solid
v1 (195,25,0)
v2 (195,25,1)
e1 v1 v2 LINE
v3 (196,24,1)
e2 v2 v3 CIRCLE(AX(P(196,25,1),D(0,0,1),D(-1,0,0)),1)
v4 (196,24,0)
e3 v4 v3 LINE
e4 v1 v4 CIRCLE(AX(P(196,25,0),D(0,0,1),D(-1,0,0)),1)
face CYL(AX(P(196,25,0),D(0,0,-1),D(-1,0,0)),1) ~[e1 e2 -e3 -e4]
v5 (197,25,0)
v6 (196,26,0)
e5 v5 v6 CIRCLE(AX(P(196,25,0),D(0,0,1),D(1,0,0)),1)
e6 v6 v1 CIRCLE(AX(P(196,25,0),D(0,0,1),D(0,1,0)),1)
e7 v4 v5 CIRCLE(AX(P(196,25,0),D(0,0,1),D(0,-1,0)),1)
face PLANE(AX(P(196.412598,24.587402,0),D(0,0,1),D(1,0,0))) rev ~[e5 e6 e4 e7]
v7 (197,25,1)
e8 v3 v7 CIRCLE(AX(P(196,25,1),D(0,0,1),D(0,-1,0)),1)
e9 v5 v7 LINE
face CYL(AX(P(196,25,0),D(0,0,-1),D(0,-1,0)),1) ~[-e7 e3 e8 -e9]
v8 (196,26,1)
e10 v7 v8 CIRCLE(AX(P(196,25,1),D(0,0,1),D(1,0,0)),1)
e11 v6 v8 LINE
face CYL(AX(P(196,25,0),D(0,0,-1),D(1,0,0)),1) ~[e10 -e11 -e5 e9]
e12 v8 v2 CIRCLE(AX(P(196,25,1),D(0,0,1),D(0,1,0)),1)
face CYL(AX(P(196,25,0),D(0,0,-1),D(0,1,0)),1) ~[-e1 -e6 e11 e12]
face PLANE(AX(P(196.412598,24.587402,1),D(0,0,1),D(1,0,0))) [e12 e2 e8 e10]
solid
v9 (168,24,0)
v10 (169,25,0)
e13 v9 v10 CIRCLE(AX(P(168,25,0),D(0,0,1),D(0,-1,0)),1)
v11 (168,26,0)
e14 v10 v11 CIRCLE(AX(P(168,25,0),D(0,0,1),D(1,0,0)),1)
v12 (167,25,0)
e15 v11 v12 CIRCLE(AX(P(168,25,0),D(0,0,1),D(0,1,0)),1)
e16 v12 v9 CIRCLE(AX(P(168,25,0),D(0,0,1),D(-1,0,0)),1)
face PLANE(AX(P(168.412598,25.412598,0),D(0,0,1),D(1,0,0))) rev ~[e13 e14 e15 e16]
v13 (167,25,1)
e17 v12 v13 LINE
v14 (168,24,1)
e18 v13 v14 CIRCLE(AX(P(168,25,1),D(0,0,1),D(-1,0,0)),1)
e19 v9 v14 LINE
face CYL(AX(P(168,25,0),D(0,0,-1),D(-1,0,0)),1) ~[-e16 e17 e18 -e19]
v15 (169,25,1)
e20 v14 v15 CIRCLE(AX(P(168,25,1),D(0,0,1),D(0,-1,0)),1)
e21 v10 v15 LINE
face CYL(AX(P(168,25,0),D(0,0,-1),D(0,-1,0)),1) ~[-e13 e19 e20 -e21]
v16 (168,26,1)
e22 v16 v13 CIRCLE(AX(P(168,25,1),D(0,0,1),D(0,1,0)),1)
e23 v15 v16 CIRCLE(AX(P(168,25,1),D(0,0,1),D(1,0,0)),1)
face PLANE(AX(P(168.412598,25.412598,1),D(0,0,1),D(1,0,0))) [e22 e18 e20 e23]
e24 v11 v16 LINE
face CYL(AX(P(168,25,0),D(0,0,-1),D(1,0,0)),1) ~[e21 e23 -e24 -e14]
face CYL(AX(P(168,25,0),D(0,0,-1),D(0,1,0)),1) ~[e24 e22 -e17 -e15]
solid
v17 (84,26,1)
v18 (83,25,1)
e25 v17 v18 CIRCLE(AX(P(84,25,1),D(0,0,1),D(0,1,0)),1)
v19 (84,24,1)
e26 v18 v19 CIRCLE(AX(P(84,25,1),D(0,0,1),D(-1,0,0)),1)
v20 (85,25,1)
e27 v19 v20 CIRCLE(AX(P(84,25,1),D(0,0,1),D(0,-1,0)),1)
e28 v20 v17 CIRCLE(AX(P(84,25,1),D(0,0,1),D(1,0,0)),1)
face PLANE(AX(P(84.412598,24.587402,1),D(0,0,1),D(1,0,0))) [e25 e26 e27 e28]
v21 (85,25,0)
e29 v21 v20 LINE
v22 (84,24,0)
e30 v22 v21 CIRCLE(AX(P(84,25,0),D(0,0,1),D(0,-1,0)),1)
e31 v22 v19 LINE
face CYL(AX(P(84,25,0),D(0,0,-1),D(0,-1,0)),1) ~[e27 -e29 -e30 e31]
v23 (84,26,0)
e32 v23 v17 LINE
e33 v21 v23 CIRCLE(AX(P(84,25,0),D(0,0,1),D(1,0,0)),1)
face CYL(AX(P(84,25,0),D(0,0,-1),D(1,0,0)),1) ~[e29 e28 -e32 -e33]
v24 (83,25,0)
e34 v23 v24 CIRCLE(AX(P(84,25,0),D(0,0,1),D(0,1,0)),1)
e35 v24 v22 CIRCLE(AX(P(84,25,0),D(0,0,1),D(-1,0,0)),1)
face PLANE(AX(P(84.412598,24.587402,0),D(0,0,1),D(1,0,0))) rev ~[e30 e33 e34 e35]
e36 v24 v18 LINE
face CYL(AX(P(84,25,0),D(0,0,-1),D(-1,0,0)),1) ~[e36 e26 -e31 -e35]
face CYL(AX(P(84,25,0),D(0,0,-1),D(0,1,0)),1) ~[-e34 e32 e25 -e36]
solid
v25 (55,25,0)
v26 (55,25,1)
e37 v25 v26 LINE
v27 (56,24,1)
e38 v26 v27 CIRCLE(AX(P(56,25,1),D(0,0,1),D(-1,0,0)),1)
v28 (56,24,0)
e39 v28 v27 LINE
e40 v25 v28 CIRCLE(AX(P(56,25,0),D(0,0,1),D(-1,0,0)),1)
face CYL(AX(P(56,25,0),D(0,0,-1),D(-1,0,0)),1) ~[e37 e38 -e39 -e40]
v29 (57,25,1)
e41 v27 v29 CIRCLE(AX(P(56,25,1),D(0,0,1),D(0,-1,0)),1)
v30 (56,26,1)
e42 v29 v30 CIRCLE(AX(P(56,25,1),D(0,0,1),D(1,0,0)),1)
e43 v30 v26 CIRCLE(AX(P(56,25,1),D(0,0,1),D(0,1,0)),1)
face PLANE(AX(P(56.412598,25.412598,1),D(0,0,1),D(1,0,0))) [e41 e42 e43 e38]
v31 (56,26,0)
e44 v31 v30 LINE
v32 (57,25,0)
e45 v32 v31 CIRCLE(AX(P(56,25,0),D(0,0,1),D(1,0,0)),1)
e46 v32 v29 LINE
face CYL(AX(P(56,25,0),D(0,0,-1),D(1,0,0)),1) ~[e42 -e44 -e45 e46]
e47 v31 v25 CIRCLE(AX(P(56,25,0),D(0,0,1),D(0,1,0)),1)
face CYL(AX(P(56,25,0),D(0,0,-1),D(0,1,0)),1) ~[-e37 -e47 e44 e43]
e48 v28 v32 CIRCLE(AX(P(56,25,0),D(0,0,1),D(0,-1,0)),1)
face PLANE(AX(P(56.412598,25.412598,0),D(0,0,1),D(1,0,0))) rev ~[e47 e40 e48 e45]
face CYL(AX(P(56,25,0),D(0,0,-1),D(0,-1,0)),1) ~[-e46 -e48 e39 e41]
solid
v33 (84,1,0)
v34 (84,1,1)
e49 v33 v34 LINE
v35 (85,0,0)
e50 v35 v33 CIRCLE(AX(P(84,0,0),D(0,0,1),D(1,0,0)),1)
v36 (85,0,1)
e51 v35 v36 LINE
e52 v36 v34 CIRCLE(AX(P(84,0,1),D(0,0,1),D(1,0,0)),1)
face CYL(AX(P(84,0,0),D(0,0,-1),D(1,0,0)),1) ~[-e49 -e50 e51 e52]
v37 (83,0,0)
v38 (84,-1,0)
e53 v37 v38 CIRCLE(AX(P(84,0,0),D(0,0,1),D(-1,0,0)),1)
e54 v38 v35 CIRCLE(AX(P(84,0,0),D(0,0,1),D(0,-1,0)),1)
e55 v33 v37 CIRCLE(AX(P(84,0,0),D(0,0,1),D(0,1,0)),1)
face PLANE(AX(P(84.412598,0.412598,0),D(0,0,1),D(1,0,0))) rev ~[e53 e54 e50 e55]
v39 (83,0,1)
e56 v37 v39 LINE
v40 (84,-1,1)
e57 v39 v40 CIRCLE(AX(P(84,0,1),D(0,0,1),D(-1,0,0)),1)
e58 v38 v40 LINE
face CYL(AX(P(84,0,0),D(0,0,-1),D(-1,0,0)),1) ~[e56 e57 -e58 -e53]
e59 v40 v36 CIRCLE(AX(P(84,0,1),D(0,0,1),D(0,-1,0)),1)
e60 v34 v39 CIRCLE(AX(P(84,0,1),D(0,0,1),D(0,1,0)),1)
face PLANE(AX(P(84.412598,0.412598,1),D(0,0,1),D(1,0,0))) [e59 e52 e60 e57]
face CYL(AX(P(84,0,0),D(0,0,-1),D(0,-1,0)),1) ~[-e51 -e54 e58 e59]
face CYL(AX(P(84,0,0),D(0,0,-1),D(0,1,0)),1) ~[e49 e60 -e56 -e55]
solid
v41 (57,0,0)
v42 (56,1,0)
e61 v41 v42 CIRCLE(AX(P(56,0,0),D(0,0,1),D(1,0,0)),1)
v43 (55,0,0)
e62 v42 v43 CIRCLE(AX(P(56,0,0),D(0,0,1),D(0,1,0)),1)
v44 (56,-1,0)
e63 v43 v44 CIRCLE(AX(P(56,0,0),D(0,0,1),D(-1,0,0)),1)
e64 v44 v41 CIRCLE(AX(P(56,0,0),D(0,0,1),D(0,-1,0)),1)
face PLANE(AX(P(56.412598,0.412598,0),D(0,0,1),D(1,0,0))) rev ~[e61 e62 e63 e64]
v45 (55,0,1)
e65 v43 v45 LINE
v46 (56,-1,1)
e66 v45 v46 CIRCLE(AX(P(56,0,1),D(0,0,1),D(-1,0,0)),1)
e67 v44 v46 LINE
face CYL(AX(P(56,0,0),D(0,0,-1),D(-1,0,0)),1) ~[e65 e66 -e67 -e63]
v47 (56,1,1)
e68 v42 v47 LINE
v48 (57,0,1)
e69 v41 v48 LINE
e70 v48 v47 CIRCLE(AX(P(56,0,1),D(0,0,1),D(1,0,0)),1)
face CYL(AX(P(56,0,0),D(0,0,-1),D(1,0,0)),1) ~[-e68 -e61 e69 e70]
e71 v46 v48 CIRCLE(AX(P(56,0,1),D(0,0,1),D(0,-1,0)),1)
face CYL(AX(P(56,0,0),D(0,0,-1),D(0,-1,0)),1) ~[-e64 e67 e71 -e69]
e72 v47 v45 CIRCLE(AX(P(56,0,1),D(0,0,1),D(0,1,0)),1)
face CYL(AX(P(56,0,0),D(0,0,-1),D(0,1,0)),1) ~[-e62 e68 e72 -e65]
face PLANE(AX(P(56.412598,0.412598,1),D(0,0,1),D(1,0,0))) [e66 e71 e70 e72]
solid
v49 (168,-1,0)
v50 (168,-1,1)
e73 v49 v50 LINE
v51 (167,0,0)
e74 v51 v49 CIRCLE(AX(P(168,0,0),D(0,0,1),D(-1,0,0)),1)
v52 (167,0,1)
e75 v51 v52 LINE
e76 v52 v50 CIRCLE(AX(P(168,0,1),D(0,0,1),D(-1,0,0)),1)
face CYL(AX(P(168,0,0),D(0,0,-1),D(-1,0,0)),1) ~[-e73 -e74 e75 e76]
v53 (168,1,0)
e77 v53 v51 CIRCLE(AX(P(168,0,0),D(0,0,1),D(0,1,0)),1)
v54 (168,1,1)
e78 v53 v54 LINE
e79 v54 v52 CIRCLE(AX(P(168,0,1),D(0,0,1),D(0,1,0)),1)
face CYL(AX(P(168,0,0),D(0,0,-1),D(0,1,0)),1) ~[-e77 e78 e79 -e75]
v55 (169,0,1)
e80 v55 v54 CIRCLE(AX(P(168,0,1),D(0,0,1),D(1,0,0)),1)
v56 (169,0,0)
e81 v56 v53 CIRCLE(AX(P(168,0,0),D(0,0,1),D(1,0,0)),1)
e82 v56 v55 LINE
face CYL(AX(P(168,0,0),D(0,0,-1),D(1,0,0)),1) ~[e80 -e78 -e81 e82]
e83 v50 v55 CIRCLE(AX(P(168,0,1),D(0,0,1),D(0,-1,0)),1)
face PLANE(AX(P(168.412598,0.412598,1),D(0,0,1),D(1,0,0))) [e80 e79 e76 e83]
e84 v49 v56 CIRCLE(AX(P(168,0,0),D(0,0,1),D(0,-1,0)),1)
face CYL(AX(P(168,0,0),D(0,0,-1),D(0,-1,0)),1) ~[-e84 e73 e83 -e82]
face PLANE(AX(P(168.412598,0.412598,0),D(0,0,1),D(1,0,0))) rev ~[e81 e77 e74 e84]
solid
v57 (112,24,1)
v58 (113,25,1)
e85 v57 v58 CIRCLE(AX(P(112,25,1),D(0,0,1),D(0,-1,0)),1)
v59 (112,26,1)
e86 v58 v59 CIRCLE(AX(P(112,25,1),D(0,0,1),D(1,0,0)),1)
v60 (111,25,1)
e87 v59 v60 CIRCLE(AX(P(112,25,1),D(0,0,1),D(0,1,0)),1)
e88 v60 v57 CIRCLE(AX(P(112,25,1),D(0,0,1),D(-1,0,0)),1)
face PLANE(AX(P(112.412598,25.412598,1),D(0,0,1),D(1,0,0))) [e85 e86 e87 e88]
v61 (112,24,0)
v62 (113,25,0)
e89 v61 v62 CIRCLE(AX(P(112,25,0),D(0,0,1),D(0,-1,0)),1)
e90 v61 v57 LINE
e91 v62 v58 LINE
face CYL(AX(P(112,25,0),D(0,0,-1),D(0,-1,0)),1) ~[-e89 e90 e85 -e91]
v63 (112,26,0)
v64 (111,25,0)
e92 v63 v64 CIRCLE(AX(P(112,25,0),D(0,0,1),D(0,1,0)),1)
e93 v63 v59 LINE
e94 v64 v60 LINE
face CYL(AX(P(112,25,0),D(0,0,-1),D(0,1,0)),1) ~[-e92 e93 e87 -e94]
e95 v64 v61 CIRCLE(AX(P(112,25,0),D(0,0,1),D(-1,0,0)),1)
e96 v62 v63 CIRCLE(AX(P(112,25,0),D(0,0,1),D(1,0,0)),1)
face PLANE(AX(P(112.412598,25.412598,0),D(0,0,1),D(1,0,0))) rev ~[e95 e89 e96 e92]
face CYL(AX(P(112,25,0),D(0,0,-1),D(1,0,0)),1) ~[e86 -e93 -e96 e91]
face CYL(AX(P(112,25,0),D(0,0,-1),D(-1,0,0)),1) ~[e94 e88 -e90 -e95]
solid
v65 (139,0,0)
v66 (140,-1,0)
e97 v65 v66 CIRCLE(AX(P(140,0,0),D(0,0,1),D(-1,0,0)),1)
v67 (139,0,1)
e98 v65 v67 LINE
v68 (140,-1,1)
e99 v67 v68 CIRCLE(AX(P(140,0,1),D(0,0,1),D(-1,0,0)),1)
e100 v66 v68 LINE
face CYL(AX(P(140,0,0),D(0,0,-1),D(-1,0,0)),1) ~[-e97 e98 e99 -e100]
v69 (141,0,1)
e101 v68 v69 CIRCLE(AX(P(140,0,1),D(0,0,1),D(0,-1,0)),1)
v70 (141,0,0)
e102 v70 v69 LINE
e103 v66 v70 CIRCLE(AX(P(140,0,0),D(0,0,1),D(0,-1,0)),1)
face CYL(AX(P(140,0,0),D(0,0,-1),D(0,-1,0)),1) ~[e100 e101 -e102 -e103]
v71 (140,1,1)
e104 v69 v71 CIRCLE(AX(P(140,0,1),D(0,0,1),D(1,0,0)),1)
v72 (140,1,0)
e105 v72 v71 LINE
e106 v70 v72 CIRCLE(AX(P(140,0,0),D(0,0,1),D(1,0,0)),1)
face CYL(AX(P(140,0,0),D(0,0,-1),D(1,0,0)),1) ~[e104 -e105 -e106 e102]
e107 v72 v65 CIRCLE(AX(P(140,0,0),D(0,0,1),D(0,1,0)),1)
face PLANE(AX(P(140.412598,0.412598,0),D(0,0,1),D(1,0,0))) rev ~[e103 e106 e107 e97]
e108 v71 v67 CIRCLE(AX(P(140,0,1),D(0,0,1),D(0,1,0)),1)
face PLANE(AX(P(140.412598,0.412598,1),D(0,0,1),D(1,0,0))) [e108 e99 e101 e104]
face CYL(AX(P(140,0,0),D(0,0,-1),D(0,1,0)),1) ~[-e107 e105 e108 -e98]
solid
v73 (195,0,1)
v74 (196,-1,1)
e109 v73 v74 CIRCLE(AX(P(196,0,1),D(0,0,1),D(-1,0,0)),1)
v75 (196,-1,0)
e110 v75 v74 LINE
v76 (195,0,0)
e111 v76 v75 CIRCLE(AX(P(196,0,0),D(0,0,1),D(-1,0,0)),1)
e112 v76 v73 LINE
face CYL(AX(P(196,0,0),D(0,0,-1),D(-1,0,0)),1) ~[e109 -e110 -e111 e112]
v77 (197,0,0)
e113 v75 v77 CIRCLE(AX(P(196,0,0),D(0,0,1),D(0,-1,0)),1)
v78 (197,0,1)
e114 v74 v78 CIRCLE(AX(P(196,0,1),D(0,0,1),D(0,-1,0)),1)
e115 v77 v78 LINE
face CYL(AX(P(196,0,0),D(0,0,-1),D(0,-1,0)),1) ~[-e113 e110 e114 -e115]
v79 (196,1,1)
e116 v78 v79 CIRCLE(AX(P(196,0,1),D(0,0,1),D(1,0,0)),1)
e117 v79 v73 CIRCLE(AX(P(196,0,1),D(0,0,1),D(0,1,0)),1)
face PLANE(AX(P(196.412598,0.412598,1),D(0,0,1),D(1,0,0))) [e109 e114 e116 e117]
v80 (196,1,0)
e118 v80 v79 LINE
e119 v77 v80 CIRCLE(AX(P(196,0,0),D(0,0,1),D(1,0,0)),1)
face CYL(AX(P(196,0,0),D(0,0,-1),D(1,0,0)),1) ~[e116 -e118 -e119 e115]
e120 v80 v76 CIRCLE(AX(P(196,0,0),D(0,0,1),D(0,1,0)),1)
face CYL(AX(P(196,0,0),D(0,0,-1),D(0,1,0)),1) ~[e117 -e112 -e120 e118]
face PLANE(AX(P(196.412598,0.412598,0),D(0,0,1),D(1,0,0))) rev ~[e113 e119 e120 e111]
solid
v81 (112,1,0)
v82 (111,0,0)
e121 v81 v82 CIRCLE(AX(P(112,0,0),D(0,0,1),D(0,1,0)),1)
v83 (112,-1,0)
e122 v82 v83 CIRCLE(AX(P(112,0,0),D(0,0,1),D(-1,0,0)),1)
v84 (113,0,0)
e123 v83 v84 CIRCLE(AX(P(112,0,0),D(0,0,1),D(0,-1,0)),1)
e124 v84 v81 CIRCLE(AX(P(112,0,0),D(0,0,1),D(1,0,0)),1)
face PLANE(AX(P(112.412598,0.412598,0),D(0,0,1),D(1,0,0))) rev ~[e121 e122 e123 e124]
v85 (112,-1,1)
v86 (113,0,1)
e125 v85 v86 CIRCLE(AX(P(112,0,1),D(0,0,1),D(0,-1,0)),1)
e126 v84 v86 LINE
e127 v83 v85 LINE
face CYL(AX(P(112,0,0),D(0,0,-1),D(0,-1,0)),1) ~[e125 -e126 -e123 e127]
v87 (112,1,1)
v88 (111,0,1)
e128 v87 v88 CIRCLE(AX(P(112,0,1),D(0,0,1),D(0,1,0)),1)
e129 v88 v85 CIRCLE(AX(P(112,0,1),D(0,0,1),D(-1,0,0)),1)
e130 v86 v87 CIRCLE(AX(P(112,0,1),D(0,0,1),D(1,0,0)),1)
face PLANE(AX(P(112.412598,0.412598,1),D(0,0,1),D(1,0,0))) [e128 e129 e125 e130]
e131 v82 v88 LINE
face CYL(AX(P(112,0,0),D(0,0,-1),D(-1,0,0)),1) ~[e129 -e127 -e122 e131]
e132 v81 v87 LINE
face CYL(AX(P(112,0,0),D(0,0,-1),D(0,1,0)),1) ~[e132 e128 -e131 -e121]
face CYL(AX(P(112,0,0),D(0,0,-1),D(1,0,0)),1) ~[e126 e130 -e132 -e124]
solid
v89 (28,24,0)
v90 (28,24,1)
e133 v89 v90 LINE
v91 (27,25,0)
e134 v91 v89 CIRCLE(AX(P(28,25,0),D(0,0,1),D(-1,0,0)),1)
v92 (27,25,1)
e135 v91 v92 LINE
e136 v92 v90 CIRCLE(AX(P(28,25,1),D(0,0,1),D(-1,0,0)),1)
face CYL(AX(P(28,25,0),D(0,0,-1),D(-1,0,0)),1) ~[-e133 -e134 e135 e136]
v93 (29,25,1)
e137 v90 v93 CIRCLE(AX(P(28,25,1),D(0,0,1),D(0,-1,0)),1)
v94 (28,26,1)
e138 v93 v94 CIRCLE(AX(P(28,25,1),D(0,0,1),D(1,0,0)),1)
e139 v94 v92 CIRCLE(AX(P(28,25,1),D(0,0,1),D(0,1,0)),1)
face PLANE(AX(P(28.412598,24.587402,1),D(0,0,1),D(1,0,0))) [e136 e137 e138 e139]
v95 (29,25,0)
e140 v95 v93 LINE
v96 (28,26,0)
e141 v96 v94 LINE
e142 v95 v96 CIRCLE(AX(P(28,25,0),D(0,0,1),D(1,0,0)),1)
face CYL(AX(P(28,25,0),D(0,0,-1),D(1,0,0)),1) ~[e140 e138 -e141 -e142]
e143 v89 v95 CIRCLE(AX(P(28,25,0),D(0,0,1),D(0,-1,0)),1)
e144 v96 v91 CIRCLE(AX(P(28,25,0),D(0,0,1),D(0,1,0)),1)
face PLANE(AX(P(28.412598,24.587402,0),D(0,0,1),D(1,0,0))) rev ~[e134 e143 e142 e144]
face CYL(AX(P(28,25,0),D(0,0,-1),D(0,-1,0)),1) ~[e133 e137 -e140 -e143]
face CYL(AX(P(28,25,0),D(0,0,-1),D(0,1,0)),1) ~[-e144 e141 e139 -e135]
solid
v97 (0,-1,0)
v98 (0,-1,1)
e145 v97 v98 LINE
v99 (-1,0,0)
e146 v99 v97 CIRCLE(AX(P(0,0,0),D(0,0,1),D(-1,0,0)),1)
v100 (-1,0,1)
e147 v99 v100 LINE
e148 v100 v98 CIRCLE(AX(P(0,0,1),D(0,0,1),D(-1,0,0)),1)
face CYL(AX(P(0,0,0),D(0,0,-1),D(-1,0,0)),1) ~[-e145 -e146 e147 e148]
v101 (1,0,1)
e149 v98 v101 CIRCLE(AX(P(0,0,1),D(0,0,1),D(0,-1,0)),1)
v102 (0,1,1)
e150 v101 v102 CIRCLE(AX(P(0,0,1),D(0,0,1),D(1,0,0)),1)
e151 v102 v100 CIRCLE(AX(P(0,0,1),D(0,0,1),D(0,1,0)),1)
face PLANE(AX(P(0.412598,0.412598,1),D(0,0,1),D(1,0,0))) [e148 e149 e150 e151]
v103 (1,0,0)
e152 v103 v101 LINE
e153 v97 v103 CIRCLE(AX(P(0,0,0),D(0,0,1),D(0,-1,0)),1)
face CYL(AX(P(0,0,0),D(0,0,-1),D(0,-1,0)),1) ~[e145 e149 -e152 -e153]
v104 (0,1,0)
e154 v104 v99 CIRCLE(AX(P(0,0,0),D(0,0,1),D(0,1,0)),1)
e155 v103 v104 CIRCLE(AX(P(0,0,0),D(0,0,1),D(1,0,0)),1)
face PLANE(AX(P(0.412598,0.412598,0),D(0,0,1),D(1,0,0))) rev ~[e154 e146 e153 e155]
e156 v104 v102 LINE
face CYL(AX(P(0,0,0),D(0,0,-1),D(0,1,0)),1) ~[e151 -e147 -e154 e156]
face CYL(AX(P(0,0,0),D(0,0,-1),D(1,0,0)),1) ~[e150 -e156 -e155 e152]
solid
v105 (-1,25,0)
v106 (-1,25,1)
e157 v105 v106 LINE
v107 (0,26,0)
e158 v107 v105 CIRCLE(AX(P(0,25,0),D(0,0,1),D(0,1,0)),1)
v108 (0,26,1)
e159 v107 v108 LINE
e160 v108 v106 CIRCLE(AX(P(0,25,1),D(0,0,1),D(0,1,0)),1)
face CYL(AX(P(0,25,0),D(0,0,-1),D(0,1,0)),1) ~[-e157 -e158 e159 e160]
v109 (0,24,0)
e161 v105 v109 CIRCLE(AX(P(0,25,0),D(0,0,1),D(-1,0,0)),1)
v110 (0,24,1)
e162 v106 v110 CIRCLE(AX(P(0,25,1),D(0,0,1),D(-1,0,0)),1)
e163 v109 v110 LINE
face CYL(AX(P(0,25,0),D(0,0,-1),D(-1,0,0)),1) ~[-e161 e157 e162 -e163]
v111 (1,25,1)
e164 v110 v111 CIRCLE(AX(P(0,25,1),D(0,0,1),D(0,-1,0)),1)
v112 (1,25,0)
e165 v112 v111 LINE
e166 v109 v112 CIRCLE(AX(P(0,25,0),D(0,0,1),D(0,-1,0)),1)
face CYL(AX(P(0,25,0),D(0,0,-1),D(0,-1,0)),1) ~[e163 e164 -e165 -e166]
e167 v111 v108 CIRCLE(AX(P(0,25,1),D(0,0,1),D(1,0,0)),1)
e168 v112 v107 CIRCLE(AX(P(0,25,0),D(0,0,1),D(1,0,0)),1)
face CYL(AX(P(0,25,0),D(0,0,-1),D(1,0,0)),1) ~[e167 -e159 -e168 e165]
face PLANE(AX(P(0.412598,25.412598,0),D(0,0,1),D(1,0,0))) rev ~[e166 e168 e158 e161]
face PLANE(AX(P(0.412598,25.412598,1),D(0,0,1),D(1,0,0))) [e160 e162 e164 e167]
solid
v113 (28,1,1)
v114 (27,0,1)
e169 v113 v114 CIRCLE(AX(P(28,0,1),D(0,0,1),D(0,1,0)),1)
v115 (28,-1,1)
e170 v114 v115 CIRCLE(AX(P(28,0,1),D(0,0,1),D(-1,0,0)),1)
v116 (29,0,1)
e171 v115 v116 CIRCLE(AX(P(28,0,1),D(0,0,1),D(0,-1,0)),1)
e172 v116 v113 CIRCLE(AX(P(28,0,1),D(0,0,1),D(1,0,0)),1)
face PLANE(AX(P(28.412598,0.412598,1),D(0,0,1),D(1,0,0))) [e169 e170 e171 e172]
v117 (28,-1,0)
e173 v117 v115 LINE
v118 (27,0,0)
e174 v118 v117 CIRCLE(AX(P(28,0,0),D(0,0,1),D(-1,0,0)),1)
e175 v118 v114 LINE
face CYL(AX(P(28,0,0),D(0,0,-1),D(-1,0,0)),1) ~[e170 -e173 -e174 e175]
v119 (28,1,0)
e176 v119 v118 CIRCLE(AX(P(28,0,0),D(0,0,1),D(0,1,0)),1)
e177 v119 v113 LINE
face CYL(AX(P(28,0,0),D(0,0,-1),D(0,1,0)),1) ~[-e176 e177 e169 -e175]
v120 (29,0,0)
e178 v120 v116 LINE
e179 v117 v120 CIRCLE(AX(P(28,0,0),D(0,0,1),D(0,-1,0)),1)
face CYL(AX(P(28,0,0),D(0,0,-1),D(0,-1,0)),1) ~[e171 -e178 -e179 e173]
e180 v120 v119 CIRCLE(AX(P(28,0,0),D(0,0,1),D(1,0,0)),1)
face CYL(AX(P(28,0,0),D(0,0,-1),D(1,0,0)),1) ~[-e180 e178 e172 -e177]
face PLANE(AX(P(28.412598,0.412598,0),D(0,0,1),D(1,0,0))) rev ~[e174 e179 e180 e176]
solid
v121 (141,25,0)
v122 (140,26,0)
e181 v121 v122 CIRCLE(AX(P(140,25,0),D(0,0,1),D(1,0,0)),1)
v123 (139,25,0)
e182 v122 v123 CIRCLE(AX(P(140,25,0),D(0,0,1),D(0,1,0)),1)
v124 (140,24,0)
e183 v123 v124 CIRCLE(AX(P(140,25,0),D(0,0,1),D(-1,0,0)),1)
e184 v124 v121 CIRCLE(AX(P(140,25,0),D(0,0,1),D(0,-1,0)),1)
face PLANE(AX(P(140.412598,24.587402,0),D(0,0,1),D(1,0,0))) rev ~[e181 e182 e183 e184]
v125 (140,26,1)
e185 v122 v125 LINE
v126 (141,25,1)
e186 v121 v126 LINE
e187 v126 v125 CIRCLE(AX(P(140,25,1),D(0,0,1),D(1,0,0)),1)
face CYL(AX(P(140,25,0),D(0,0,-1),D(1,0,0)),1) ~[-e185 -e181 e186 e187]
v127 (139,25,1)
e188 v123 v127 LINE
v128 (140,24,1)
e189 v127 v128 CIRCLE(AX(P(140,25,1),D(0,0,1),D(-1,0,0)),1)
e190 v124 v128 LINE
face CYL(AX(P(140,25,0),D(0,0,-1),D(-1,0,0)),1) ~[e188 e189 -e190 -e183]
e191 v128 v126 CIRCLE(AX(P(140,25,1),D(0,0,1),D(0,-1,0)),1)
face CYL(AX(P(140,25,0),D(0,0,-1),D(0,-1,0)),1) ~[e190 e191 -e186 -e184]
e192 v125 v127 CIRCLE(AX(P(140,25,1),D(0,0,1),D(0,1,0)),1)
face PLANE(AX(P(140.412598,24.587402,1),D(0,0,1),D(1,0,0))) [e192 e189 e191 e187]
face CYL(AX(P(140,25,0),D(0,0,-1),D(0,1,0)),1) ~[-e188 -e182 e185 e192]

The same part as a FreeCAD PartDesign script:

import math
import FreeCAD as App
import Part
import Sketcher
from FreeCAD import Vector
Q = App.Units.Quantity

doc = App.newDocument("Part")
body = doc.addObject("PartDesign::Body", "Body")

sketch1 = doc.addObject("Sketcher::SketchObject", "Sketch")
body.addObject(sketch1)
sketch1.AttachmentSupport = (doc.XY_Plane, [""])
sketch1.MapMode = "FlatFace"
sketch1.addGeometry(Part.ArcOfCircle(Part.Circle(Vector(196, 25, 0), Vector(0, 0, 1), 1), math.radians(-90), math.radians(0)), False)
sketch1.addGeometry(Part.ArcOfCircle(Part.Circle(Vector(196, 25, 0), Vector(0, 0, 1), 1), math.radians(0), math.radians(90)), False)
sketch1.addGeometry(Part.ArcOfCircle(Part.Circle(Vector(196, 25, 0), Vector(0, 0, 1), 1), math.radians(90), math.radians(180)), False)
sketch1.addGeometry(Part.ArcOfCircle(Part.Circle(Vector(196, 25, 0), Vector(0, 0, 1), 1), math.radians(180), math.radians(270)), False)
sketch1.addConstraint(Sketcher.Constraint("Tangent", 0, 2, 1, 1))
sketch1.addConstraint(Sketcher.Constraint("Tangent", 1, 2, 2, 1))
sketch1.addConstraint(Sketcher.Constraint("Tangent", 2, 2, 3, 1))
sketch1.addConstraint(Sketcher.Constraint("Tangent", 3, 2, 0, 1))
sketch1.addConstraint(Sketcher.Constraint("Equal", 0, 1))
sketch1.addConstraint(Sketcher.Constraint("Horizontal", 3, 3, 0, 2))
sketch1.addConstraint(Sketcher.Constraint("Horizontal", 0, 2, 2, 2))
sketch1.addConstraint(Sketcher.Constraint("Vertical", 3, 3, 1, 2))
sketch1.addConstraint(Sketcher.Constraint("Vertical", 1, 2, 3, 2))
sketch1.addConstraint(Sketcher.Constraint("Radius", 0, Q("1 mm")))
sketch1.addConstraint(Sketcher.Constraint("DistanceX", -1, 1, 0, 3, Q("196 mm")))
sketch1.addConstraint(Sketcher.Constraint("DistanceY", -1, 1, 0, 3, Q("25 mm")))
pad1 = doc.addObject("PartDesign::Pad", "Pad")
body.addObject(pad1)
pad1.Profile = sketch1
pad1.Length = 1
body2 = doc.addObject("PartDesign::Body", "Body001")

sketch2 = doc.addObject("Sketcher::SketchObject", "Sketch001")
body2.addObject(sketch2)
sketch2.AttachmentSupport = (doc.getObject("XY_Plane001"), [""])
sketch2.MapMode = "FlatFace"
sketch2.addGeometry(Part.ArcOfCircle(Part.Circle(Vector(168, 25, 0), Vector(0, 0, 1), 1), math.radians(0), math.radians(90)), False)
sketch2.addGeometry(Part.ArcOfCircle(Part.Circle(Vector(168, 25, 0), Vector(0, 0, 1), 1), math.radians(90), math.radians(180)), False)
sketch2.addGeometry(Part.ArcOfCircle(Part.Circle(Vector(168, 25, 0), Vector(0, 0, 1), 1), math.radians(180), math.radians(270)), False)
sketch2.addGeometry(Part.ArcOfCircle(Part.Circle(Vector(168, 25, 0), Vector(0, 0, 1), 1), math.radians(-90), math.radians(0)), False)
sketch2.addConstraint(Sketcher.Constraint("Tangent", 0, 2, 1, 1))
sketch2.addConstraint(Sketcher.Constraint("Tangent", 1, 2, 2, 1))
sketch2.addConstraint(Sketcher.Constraint("Tangent", 2, 2, 3, 1))
sketch2.addConstraint(Sketcher.Constraint("Tangent", 3, 2, 0, 1))
sketch2.addConstraint(Sketcher.Constraint("Equal", 0, 1))
sketch2.addConstraint(Sketcher.Constraint("Horizontal", 3, 3, 1, 2))
sketch2.addConstraint(Sketcher.Constraint("Horizontal", 1, 2, 3, 2))
sketch2.addConstraint(Sketcher.Constraint("Vertical", 3, 3, 0, 2))
sketch2.addConstraint(Sketcher.Constraint("Vertical", 0, 2, 2, 2))
sketch2.addConstraint(Sketcher.Constraint("Radius", 0, Q("1 mm")))
sketch2.addConstraint(Sketcher.Constraint("DistanceX", -1, 1, 0, 3, Q("168 mm")))
sketch2.addConstraint(Sketcher.Constraint("DistanceY", -1, 1, 0, 3, Q("25 mm")))
pad2 = doc.addObject("PartDesign::Pad", "Pad001")
body2.addObject(pad2)
pad2.Profile = sketch2
pad2.Length = 1
body3 = doc.addObject("PartDesign::Body", "Body002")

sketch3 = doc.addObject("Sketcher::SketchObject", "Sketch002")
body3.addObject(sketch3)
sketch3.AttachmentSupport = (doc.getObject("XY_Plane002"), [""])
sketch3.MapMode = "FlatFace"
sketch3.addGeometry(Part.ArcOfCircle(Part.Circle(Vector(196, 0, 0), Vector(0, 0, 1), 1), math.radians(0), math.radians(90)), False)
sketch3.addGeometry(Part.ArcOfCircle(Part.Circle(Vector(196, 0, 0), Vector(0, 0, 1), 1), math.radians(90), math.radians(180)), False)
sketch3.addGeometry(Part.ArcOfCircle(Part.Circle(Vector(196, 0, 0), Vector(0, 0, 1), 1), math.radians(180), math.radians(270)), False)
sketch3.addGeometry(Part.ArcOfCircle(Part.Circle(Vector(196, 0, 0), Vector(0, 0, 1), 1), math.radians(-90), math.radians(0)), False)
sketch3.addConstraint(Sketcher.Constraint("Tangent", 0, 2, 1, 1))
sketch3.addConstraint(Sketcher.Constraint("Tangent", 1, 2, 2, 1))
sketch3.addConstraint(Sketcher.Constraint("Tangent", 2, 2, 3, 1))
sketch3.addConstraint(Sketcher.Constraint("Tangent", 3, 2, 0, 1))
sketch3.addConstraint(Sketcher.Constraint("Equal", 0, 1))
sketch3.addConstraint(Sketcher.Constraint("Symmetric", 0, 2, 2, 2, -1))
sketch3.addConstraint(Sketcher.Constraint("PointOnObject", 1, 2, -1))
sketch3.addConstraint(Sketcher.Constraint("PointOnObject", 3, 2, -1))
sketch3.addConstraint(Sketcher.Constraint("Vertical", 3, 3, 0, 2))
sketch3.addConstraint(Sketcher.Constraint("Radius", 0, Q("1 mm")))
sketch3.addConstraint(Sketcher.Constraint("DistanceX", -1, 1, 0, 3, Q("196 mm")))
pad3 = doc.addObject("PartDesign::Pad", "Pad002")
body3.addObject(pad3)
pad3.Profile = sketch3
pad3.Length = 1
body4 = doc.addObject("PartDesign::Body", "Body003")

sketch4 = doc.addObject("Sketcher::SketchObject", "Sketch003")
body4.addObject(sketch4)
sketch4.AttachmentSupport = (doc.getObject("XY_Plane003"), [""])
sketch4.MapMode = "FlatFace"
sketch4.addGeometry(Part.ArcOfCircle(Part.Circle(Vector(0, 25, 0), Vector(0, 0, 1), 1), math.radians(0), math.radians(90)), False)
sketch4.addGeometry(Part.ArcOfCircle(Part.Circle(Vector(0, 25, 0), Vector(0, 0, 1), 1), math.radians(90), math.radians(180)), False)
sketch4.addGeometry(Part.ArcOfCircle(Part.Circle(Vector(0, 25, 0), Vector(0, 0, 1), 1), math.radians(180), math.radians(270)), False)
sketch4.addGeometry(Part.ArcOfCircle(Part.Circle(Vector(0, 25, 0), Vector(0, 0, 1), 1), math.radians(-90), math.radians(0)), False)
sketch4.addConstraint(Sketcher.Constraint("Tangent", 0, 2, 1, 1))
sketch4.addConstraint(Sketcher.Constraint("Tangent", 1, 2, 2, 1))
sketch4.addConstraint(Sketcher.Constraint("Tangent", 2, 2, 3, 1))
sketch4.addConstraint(Sketcher.Constraint("Tangent", 3, 2, 0, 1))
sketch4.addConstraint(Sketcher.Constraint("Equal", 0, 1))
sketch4.addConstraint(Sketcher.Constraint("Symmetric", 1, 2, 3, 2, -2))
sketch4.addConstraint(Sketcher.Constraint("PointOnObject", 0, 2, -2))
sketch4.addConstraint(Sketcher.Constraint("PointOnObject", 2, 2, -2))
sketch4.addConstraint(Sketcher.Constraint("Horizontal", 3, 3, 1, 2))
sketch4.addConstraint(Sketcher.Constraint("Radius", 0, Q("1 mm")))
sketch4.addConstraint(Sketcher.Constraint("DistanceY", -1, 1, 0, 3, Q("25 mm")))
pad4 = doc.addObject("PartDesign::Pad", "Pad003")
body4.addObject(pad4)
pad4.Profile = sketch4
pad4.Length = 1
body5 = doc.addObject("PartDesign::Body", "Body004")

sketch5 = doc.addObject("Sketcher::SketchObject", "Sketch004")
body5.addObject(sketch5)
sketch5.AttachmentSupport = (doc.getObject("XY_Plane004"), [""])
sketch5.MapMode = "FlatFace"
sketch5.addGeometry(Part.ArcOfCircle(Part.Circle(Vector(28, 0, 0), Vector(0, 0, 1), 1), math.radians(0), math.radians(90)), False)
sketch5.addGeometry(Part.ArcOfCircle(Part.Circle(Vector(28, 0, 0), Vector(0, 0, 1), 1), math.radians(90), math.radians(180)), False)
sketch5.addGeometry(Part.ArcOfCircle(Part.Circle(Vector(28, 0, 0), Vector(0, 0, 1), 1), math.radians(180), math.radians(270)), False)
sketch5.addGeometry(Part.ArcOfCircle(Part.Circle(Vector(28, 0, 0), Vector(0, 0, 1), 1), math.radians(-90), math.radians(0)), False)
sketch5.addConstraint(Sketcher.Constraint("Tangent", 0, 2, 1, 1))
sketch5.addConstraint(Sketcher.Constraint("Tangent", 1, 2, 2, 1))
sketch5.addConstraint(Sketcher.Constraint("Tangent", 2, 2, 3, 1))
sketch5.addConstraint(Sketcher.Constraint("Tangent", 3, 2, 0, 1))
sketch5.addConstraint(Sketcher.Constraint("Equal", 0, 1))
sketch5.addConstraint(Sketcher.Constraint("Symmetric", 0, 2, 2, 2, -1))
sketch5.addConstraint(Sketcher.Constraint("PointOnObject", 1, 2, -1))
sketch5.addConstraint(Sketcher.Constraint("PointOnObject", 3, 2, -1))
sketch5.addConstraint(Sketcher.Constraint("Vertical", 3, 3, 0, 2))
sketch5.addConstraint(Sketcher.Constraint("Radius", 0, Q("1 mm")))
sketch5.addConstraint(Sketcher.Constraint("DistanceX", -1, 1, 0, 3, Q("28 mm")))
pad5 = doc.addObject("PartDesign::Pad", "Pad004")
body5.addObject(pad5)
pad5.Profile = sketch5
pad5.Length = 1
body6 = doc.addObject("PartDesign::Body", "Body005")

sketch6 = doc.addObject("Sketcher::SketchObject", "Sketch005")
body6.addObject(sketch6)
sketch6.AttachmentSupport = (doc.getObject("XY_Plane005"), [""])
sketch6.MapMode = "FlatFace"
sketch6.addGeometry(Part.ArcOfCircle(Part.Circle(Vector(28, 25, 0), Vector(0, 0, 1), 1), math.radians(-90), math.radians(0)), False)
sketch6.addGeometry(Part.ArcOfCircle(Part.Circle(Vector(28, 25, 0), Vector(0, 0, 1), 1), math.radians(0), math.radians(90)), False)
sketch6.addGeometry(Part.ArcOfCircle(Part.Circle(Vector(28, 25, 0), Vector(0, 0, 1), 1), math.radians(90), math.radians(180)), False)
sketch6.addGeometry(Part.ArcOfCircle(Part.Circle(Vector(28, 25, 0), Vector(0, 0, 1), 1), math.radians(180), math.radians(270)), False)
sketch6.addConstraint(Sketcher.Constraint("Tangent", 0, 2, 1, 1))
sketch6.addConstraint(Sketcher.Constraint("Tangent", 1, 2, 2, 1))
sketch6.addConstraint(Sketcher.Constraint("Tangent", 2, 2, 3, 1))
sketch6.addConstraint(Sketcher.Constraint("Tangent", 3, 2, 0, 1))
sketch6.addConstraint(Sketcher.Constraint("Equal", 0, 1))
sketch6.addConstraint(Sketcher.Constraint("Horizontal", 3, 3, 0, 2))
sketch6.addConstraint(Sketcher.Constraint("Horizontal", 0, 2, 2, 2))
sketch6.addConstraint(Sketcher.Constraint("Vertical", 3, 3, 1, 2))
sketch6.addConstraint(Sketcher.Constraint("Vertical", 1, 2, 3, 2))
sketch6.addConstraint(Sketcher.Constraint("Radius", 0, Q("1 mm")))
sketch6.addConstraint(Sketcher.Constraint("DistanceX", -1, 1, 0, 3, Q("28 mm")))
sketch6.addConstraint(Sketcher.Constraint("DistanceY", -1, 1, 0, 3, Q("25 mm")))
pad6 = doc.addObject("PartDesign::Pad", "Pad005")
body6.addObject(pad6)
pad6.Profile = sketch6
pad6.Length = 1
body7 = doc.addObject("PartDesign::Body", "Body006")

sketch7 = doc.addObject("Sketcher::SketchObject", "Sketch006")
body7.addObject(sketch7)
sketch7.AttachmentSupport = (doc.getObject("XY_Plane006"), [""])
sketch7.MapMode = "FlatFace"
sketch7.addGeometry(Part.ArcOfCircle(Part.Circle(Vector(56, 0, 0), Vector(0, 0, 1), 1), math.radians(0), math.radians(90)), False)
sketch7.addGeometry(Part.ArcOfCircle(Part.Circle(Vector(56, 0, 0), Vector(0, 0, 1), 1), math.radians(90), math.radians(180)), False)
sketch7.addGeometry(Part.ArcOfCircle(Part.Circle(Vector(56, 0, 0), Vector(0, 0, 1), 1), math.radians(180), math.radians(270)), False)
sketch7.addGeometry(Part.ArcOfCircle(Part.Circle(Vector(56, 0, 0), Vector(0, 0, 1), 1), math.radians(-90), math.radians(0)), False)
sketch7.addConstraint(Sketcher.Constraint("Tangent", 0, 2, 1, 1))
sketch7.addConstraint(Sketcher.Constraint("Tangent", 1, 2, 2, 1))
sketch7.addConstraint(Sketcher.Constraint("Tangent", 2, 2, 3, 1))
sketch7.addConstraint(Sketcher.Constraint("Tangent", 3, 2, 0, 1))
sketch7.addConstraint(Sketcher.Constraint("Equal", 0, 1))
sketch7.addConstraint(Sketcher.Constraint("Symmetric", 0, 2, 2, 2, -1))
sketch7.addConstraint(Sketcher.Constraint("PointOnObject", 1, 2, -1))
sketch7.addConstraint(Sketcher.Constraint("PointOnObject", 3, 2, -1))
sketch7.addConstraint(Sketcher.Constraint("Vertical", 3, 3, 0, 2))
sketch7.addConstraint(Sketcher.Constraint("Radius", 0, Q("1 mm")))
sketch7.addConstraint(Sketcher.Constraint("DistanceX", -1, 1, 0, 3, Q("56 mm")))
pad7 = doc.addObject("PartDesign::Pad", "Pad006")
body7.addObject(pad7)
pad7.Profile = sketch7
pad7.Length = 1
body8 = doc.addObject("PartDesign::Body", "Body007")

sketch8 = doc.addObject("Sketcher::SketchObject", "Sketch007")
body8.addObject(sketch8)
sketch8.AttachmentSupport = (doc.getObject("XY_Plane007"), [""])
sketch8.MapMode = "FlatFace"
sketch8.addGeometry(Part.ArcOfCircle(Part.Circle(Vector(56, 25, 0), Vector(0, 0, 1), 1), math.radians(0), math.radians(90)), False)
sketch8.addGeometry(Part.ArcOfCircle(Part.Circle(Vector(56, 25, 0), Vector(0, 0, 1), 1), math.radians(90), math.radians(180)), False)
sketch8.addGeometry(Part.ArcOfCircle(Part.Circle(Vector(56, 25, 0), Vector(0, 0, 1), 1), math.radians(180), math.radians(270)), False)
sketch8.addGeometry(Part.ArcOfCircle(Part.Circle(Vector(56, 25, 0), Vector(0, 0, 1), 1), math.radians(-90), math.radians(0)), False)
sketch8.addConstraint(Sketcher.Constraint("Tangent", 0, 2, 1, 1))
sketch8.addConstraint(Sketcher.Constraint("Tangent", 1, 2, 2, 1))
sketch8.addConstraint(Sketcher.Constraint("Tangent", 2, 2, 3, 1))
sketch8.addConstraint(Sketcher.Constraint("Tangent", 3, 2, 0, 1))
sketch8.addConstraint(Sketcher.Constraint("Equal", 0, 1))
sketch8.addConstraint(Sketcher.Constraint("Horizontal", 3, 3, 1, 2))
sketch8.addConstraint(Sketcher.Constraint("Horizontal", 1, 2, 3, 2))
sketch8.addConstraint(Sketcher.Constraint("Vertical", 3, 3, 0, 2))
sketch8.addConstraint(Sketcher.Constraint("Vertical", 0, 2, 2, 2))
sketch8.addConstraint(Sketcher.Constraint("Radius", 0, Q("1 mm")))
sketch8.addConstraint(Sketcher.Constraint("DistanceX", -1, 1, 0, 3, Q("56 mm")))
sketch8.addConstraint(Sketcher.Constraint("DistanceY", -1, 1, 0, 3, Q("25 mm")))
pad8 = doc.addObject("PartDesign::Pad", "Pad007")
body8.addObject(pad8)
pad8.Profile = sketch8
pad8.Length = 1
body9 = doc.addObject("PartDesign::Body", "Body008")

sketch9 = doc.addObject("Sketcher::SketchObject", "Sketch008")
body9.addObject(sketch9)
sketch9.AttachmentSupport = (doc.getObject("XY_Plane008"), [""])
sketch9.MapMode = "FlatFace"
sketch9.addGeometry(Part.ArcOfCircle(Part.Circle(Vector(84, 0, 0), Vector(0, 0, 1), 1), math.radians(0), math.radians(90)), False)
sketch9.addGeometry(Part.ArcOfCircle(Part.Circle(Vector(84, 0, 0), Vector(0, 0, 1), 1), math.radians(90), math.radians(180)), False)
sketch9.addGeometry(Part.ArcOfCircle(Part.Circle(Vector(84, 0, 0), Vector(0, 0, 1), 1), math.radians(180), math.radians(270)), False)
sketch9.addGeometry(Part.ArcOfCircle(Part.Circle(Vector(84, 0, 0), Vector(0, 0, 1), 1), math.radians(-90), math.radians(0)), False)
sketch9.addConstraint(Sketcher.Constraint("Tangent", 0, 2, 1, 1))
sketch9.addConstraint(Sketcher.Constraint("Tangent", 1, 2, 2, 1))
sketch9.addConstraint(Sketcher.Constraint("Tangent", 2, 2, 3, 1))
sketch9.addConstraint(Sketcher.Constraint("Tangent", 3, 2, 0, 1))
sketch9.addConstraint(Sketcher.Constraint("Equal", 0, 1))
sketch9.addConstraint(Sketcher.Constraint("Symmetric", 0, 2, 2, 2, -1))
sketch9.addConstraint(Sketcher.Constraint("PointOnObject", 1, 2, -1))
sketch9.addConstraint(Sketcher.Constraint("PointOnObject", 3, 2, -1))
sketch9.addConstraint(Sketcher.Constraint("Vertical", 3, 3, 0, 2))
sketch9.addConstraint(Sketcher.Constraint("Radius", 0, Q("1 mm")))
sketch9.addConstraint(Sketcher.Constraint("DistanceX", -1, 1, 0, 3, Q("84 mm")))
pad9 = doc.addObject("PartDesign::Pad", "Pad008")
body9.addObject(pad9)
pad9.Profile = sketch9
pad9.Length = 1
body10 = doc.addObject("PartDesign::Body", "Body009")

sketch10 = doc.addObject("Sketcher::SketchObject", "Sketch009")
body10.addObject(sketch10)
sketch10.AttachmentSupport = (doc.getObject("XY_Plane009"), [""])
sketch10.MapMode = "FlatFace"
sketch10.addGeometry(Part.ArcOfCircle(Part.Circle(Vector(84, 25, 0), Vector(0, 0, 1), 1), math.radians(-90), math.radians(0)), False)
sketch10.addGeometry(Part.ArcOfCircle(Part.Circle(Vector(84, 25, 0), Vector(0, 0, 1), 1), math.radians(0), math.radians(90)), False)
sketch10.addGeometry(Part.ArcOfCircle(Part.Circle(Vector(84, 25, 0), Vector(0, 0, 1), 1), math.radians(90), math.radians(180)), False)
sketch10.addGeometry(Part.ArcOfCircle(Part.Circle(Vector(84, 25, 0), Vector(0, 0, 1), 1), math.radians(180), math.radians(270)), False)
sketch10.addConstraint(Sketcher.Constraint("Tangent", 0, 2, 1, 1))
sketch10.addConstraint(Sketcher.Constraint("Tangent", 1, 2, 2, 1))
sketch10.addConstraint(Sketcher.Constraint("Tangent", 2, 2, 3, 1))
sketch10.addConstraint(Sketcher.Constraint("Tangent", 3, 2, 0, 1))
sketch10.addConstraint(Sketcher.Constraint("Equal", 0, 1))
sketch10.addConstraint(Sketcher.Constraint("Horizontal", 3, 3, 0, 2))
sketch10.addConstraint(Sketcher.Constraint("Horizontal", 0, 2, 2, 2))
sketch10.addConstraint(Sketcher.Constraint("Vertical", 3, 3, 1, 2))
sketch10.addConstraint(Sketcher.Constraint("Vertical", 1, 2, 3, 2))
sketch10.addConstraint(Sketcher.Constraint("Radius", 0, Q("1 mm")))
sketch10.addConstraint(Sketcher.Constraint("DistanceX", -1, 1, 0, 3, Q("84 mm")))
sketch10.addConstraint(Sketcher.Constraint("DistanceY", -1, 1, 0, 3, Q("25 mm")))
pad10 = doc.addObject("PartDesign::Pad", "Pad009")
body10.addObject(pad10)
pad10.Profile = sketch10
pad10.Length = 1
body11 = doc.addObject("PartDesign::Body", "Body010")

sketch11 = doc.addObject("Sketcher::SketchObject", "Sketch010")
body11.addObject(sketch11)
sketch11.AttachmentSupport = (doc.getObject("XY_Plane010"), [""])
sketch11.MapMode = "FlatFace"
sketch11.addGeometry(Part.ArcOfCircle(Part.Circle(Vector(112, 0, 0), Vector(0, 0, 1), 1), math.radians(0), math.radians(90)), False)
sketch11.addGeometry(Part.ArcOfCircle(Part.Circle(Vector(112, 0, 0), Vector(0, 0, 1), 1), math.radians(90), math.radians(180)), False)
sketch11.addGeometry(Part.ArcOfCircle(Part.Circle(Vector(112, 0, 0), Vector(0, 0, 1), 1), math.radians(180), math.radians(270)), False)
sketch11.addGeometry(Part.ArcOfCircle(Part.Circle(Vector(112, 0, 0), Vector(0, 0, 1), 1), math.radians(-90), math.radians(0)), False)
sketch11.addConstraint(Sketcher.Constraint("Tangent", 0, 2, 1, 1))
sketch11.addConstraint(Sketcher.Constraint("Tangent", 1, 2, 2, 1))
sketch11.addConstraint(Sketcher.Constraint("Tangent", 2, 2, 3, 1))
sketch11.addConstraint(Sketcher.Constraint("Tangent", 3, 2, 0, 1))
sketch11.addConstraint(Sketcher.Constraint("Equal", 0, 1))
sketch11.addConstraint(Sketcher.Constraint("Symmetric", 0, 2, 2, 2, -1))
sketch11.addConstraint(Sketcher.Constraint("PointOnObject", 1, 2, -1))
sketch11.addConstraint(Sketcher.Constraint("PointOnObject", 3, 2, -1))
sketch11.addConstraint(Sketcher.Constraint("Vertical", 3, 3, 0, 2))
sketch11.addConstraint(Sketcher.Constraint("Radius", 0, Q("1 mm")))
sketch11.addConstraint(Sketcher.Constraint("DistanceX", -1, 1, 0, 3, Q("112 mm")))
pad11 = doc.addObject("PartDesign::Pad", "Pad010")
body11.addObject(pad11)
pad11.Profile = sketch11
pad11.Length = 1
body12 = doc.addObject("PartDesign::Body", "Body011")

sketch12 = doc.addObject("Sketcher::SketchObject", "Sketch011")
body12.addObject(sketch12)
sketch12.AttachmentSupport = (doc.getObject("XY_Plane011"), [""])
sketch12.MapMode = "FlatFace"
sketch12.addGeometry(Part.ArcOfCircle(Part.Circle(Vector(112, 25, 0), Vector(0, 0, 1), 1), math.radians(0), math.radians(90)), False)
sketch12.addGeometry(Part.ArcOfCircle(Part.Circle(Vector(112, 25, 0), Vector(0, 0, 1), 1), math.radians(90), math.radians(180)), False)
sketch12.addGeometry(Part.ArcOfCircle(Part.Circle(Vector(112, 25, 0), Vector(0, 0, 1), 1), math.radians(180), math.radians(270)), False)
sketch12.addGeometry(Part.ArcOfCircle(Part.Circle(Vector(112, 25, 0), Vector(0, 0, 1), 1), math.radians(-90), math.radians(0)), False)
sketch12.addConstraint(Sketcher.Constraint("Tangent", 0, 2, 1, 1))
sketch12.addConstraint(Sketcher.Constraint("Tangent", 1, 2, 2, 1))
sketch12.addConstraint(Sketcher.Constraint("Tangent", 2, 2, 3, 1))
sketch12.addConstraint(Sketcher.Constraint("Tangent", 3, 2, 0, 1))
sketch12.addConstraint(Sketcher.Constraint("Equal", 0, 1))
sketch12.addConstraint(Sketcher.Constraint("Horizontal", 3, 3, 1, 2))
sketch12.addConstraint(Sketcher.Constraint("Horizontal", 1, 2, 3, 2))
sketch12.addConstraint(Sketcher.Constraint("Vertical", 3, 3, 0, 2))
sketch12.addConstraint(Sketcher.Constraint("Vertical", 0, 2, 2, 2))
sketch12.addConstraint(Sketcher.Constraint("Radius", 0, Q("1 mm")))
sketch12.addConstraint(Sketcher.Constraint("DistanceX", -1, 1, 0, 3, Q("112 mm")))
sketch12.addConstraint(Sketcher.Constraint("DistanceY", -1, 1, 0, 3, Q("25 mm")))
pad12 = doc.addObject("PartDesign::Pad", "Pad011")
body12.addObject(pad12)
pad12.Profile = sketch12
pad12.Length = 1
body13 = doc.addObject("PartDesign::Body", "Body012")

sketch13 = doc.addObject("Sketcher::SketchObject", "Sketch012")
body13.addObject(sketch13)
sketch13.AttachmentSupport = (doc.getObject("XY_Plane012"), [""])
sketch13.MapMode = "FlatFace"
sketch13.addGeometry(Part.ArcOfCircle(Part.Circle(Vector(140, 0, 0), Vector(0, 0, 1), 1), math.radians(0), math.radians(90)), False)
sketch13.addGeometry(Part.ArcOfCircle(Part.Circle(Vector(140, 0, 0), Vector(0, 0, 1), 1), math.radians(90), math.radians(180)), False)
sketch13.addGeometry(Part.ArcOfCircle(Part.Circle(Vector(140, 0, 0), Vector(0, 0, 1), 1), math.radians(180), math.radians(270)), False)
sketch13.addGeometry(Part.ArcOfCircle(Part.Circle(Vector(140, 0, 0), Vector(0, 0, 1), 1), math.radians(-90), math.radians(0)), False)
sketch13.addConstraint(Sketcher.Constraint("Tangent", 0, 2, 1, 1))
sketch13.addConstraint(Sketcher.Constraint("Tangent", 1, 2, 2, 1))
sketch13.addConstraint(Sketcher.Constraint("Tangent", 2, 2, 3, 1))
sketch13.addConstraint(Sketcher.Constraint("Tangent", 3, 2, 0, 1))
sketch13.addConstraint(Sketcher.Constraint("Equal", 0, 1))
sketch13.addConstraint(Sketcher.Constraint("Symmetric", 0, 2, 2, 2, -1))
sketch13.addConstraint(Sketcher.Constraint("PointOnObject", 1, 2, -1))
sketch13.addConstraint(Sketcher.Constraint("PointOnObject", 3, 2, -1))
sketch13.addConstraint(Sketcher.Constraint("Vertical", 3, 3, 0, 2))
sketch13.addConstraint(Sketcher.Constraint("Radius", 0, Q("1 mm")))
sketch13.addConstraint(Sketcher.Constraint("DistanceX", -1, 1, 0, 3, Q("140 mm")))
pad13 = doc.addObject("PartDesign::Pad", "Pad012")
body13.addObject(pad13)
pad13.Profile = sketch13
pad13.Length = 1
body14 = doc.addObject("PartDesign::Body", "Body013")

sketch14 = doc.addObject("Sketcher::SketchObject", "Sketch013")
body14.addObject(sketch14)
sketch14.AttachmentSupport = (doc.getObject("XY_Plane013"), [""])
sketch14.MapMode = "FlatFace"
sketch14.addGeometry(Part.ArcOfCircle(Part.Circle(Vector(140, 25, 0), Vector(0, 0, 1), 1), math.radians(-90), math.radians(0)), False)
sketch14.addGeometry(Part.ArcOfCircle(Part.Circle(Vector(140, 25, 0), Vector(0, 0, 1), 1), math.radians(0), math.radians(90)), False)
sketch14.addGeometry(Part.ArcOfCircle(Part.Circle(Vector(140, 25, 0), Vector(0, 0, 1), 1), math.radians(90), math.radians(180)), False)
sketch14.addGeometry(Part.ArcOfCircle(Part.Circle(Vector(140, 25, 0), Vector(0, 0, 1), 1), math.radians(180), math.radians(270)), False)
sketch14.addConstraint(Sketcher.Constraint("Tangent", 0, 2, 1, 1))
sketch14.addConstraint(Sketcher.Constraint("Tangent", 1, 2, 2, 1))
sketch14.addConstraint(Sketcher.Constraint("Tangent", 2, 2, 3, 1))
sketch14.addConstraint(Sketcher.Constraint("Tangent", 3, 2, 0, 1))
sketch14.addConstraint(Sketcher.Constraint("Equal", 0, 1))
sketch14.addConstraint(Sketcher.Constraint("Horizontal", 3, 3, 0, 2))
sketch14.addConstraint(Sketcher.Constraint("Horizontal", 0, 2, 2, 2))
sketch14.addConstraint(Sketcher.Constraint("Vertical", 3, 3, 1, 2))
sketch14.addConstraint(Sketcher.Constraint("Vertical", 1, 2, 3, 2))
sketch14.addConstraint(Sketcher.Constraint("Radius", 0, Q("1 mm")))
sketch14.addConstraint(Sketcher.Constraint("DistanceX", -1, 1, 0, 3, Q("140 mm")))
sketch14.addConstraint(Sketcher.Constraint("DistanceY", -1, 1, 0, 3, Q("25 mm")))
pad14 = doc.addObject("PartDesign::Pad", "Pad013")
body14.addObject(pad14)
pad14.Profile = sketch14
pad14.Length = 1
body15 = doc.addObject("PartDesign::Body", "Body014")

sketch15 = doc.addObject("Sketcher::SketchObject", "Sketch014")
body15.addObject(sketch15)
sketch15.AttachmentSupport = (doc.getObject("XY_Plane014"), [""])
sketch15.MapMode = "FlatFace"
sketch15.addGeometry(Part.ArcOfCircle(Part.Circle(Vector(168, 0, 0), Vector(0, 0, 1), 1), math.radians(0), math.radians(90)), False)
sketch15.addGeometry(Part.ArcOfCircle(Part.Circle(Vector(168, 0, 0), Vector(0, 0, 1), 1), math.radians(90), math.radians(180)), False)
sketch15.addGeometry(Part.ArcOfCircle(Part.Circle(Vector(168, 0, 0), Vector(0, 0, 1), 1), math.radians(180), math.radians(270)), False)
sketch15.addGeometry(Part.ArcOfCircle(Part.Circle(Vector(168, 0, 0), Vector(0, 0, 1), 1), math.radians(-90), math.radians(0)), False)
sketch15.addConstraint(Sketcher.Constraint("Tangent", 0, 2, 1, 1))
sketch15.addConstraint(Sketcher.Constraint("Tangent", 1, 2, 2, 1))
sketch15.addConstraint(Sketcher.Constraint("Tangent", 2, 2, 3, 1))
sketch15.addConstraint(Sketcher.Constraint("Tangent", 3, 2, 0, 1))
sketch15.addConstraint(Sketcher.Constraint("Equal", 0, 1))
sketch15.addConstraint(Sketcher.Constraint("Symmetric", 0, 2, 2, 2, -1))
sketch15.addConstraint(Sketcher.Constraint("PointOnObject", 1, 2, -1))
sketch15.addConstraint(Sketcher.Constraint("PointOnObject", 3, 2, -1))
sketch15.addConstraint(Sketcher.Constraint("Vertical", 3, 3, 0, 2))
sketch15.addConstraint(Sketcher.Constraint("Radius", 0, Q("1 mm")))
sketch15.addConstraint(Sketcher.Constraint("DistanceX", -1, 1, 0, 3, Q("168 mm")))
pad15 = doc.addObject("PartDesign::Pad", "Pad014")
body15.addObject(pad15)
pad15.Profile = sketch15
pad15.Length = 1
body16 = doc.addObject("PartDesign::Body", "Body015")

sketch16 = doc.addObject("Sketcher::SketchObject", "Sketch015")
body16.addObject(sketch16)
sketch16.AttachmentSupport = (doc.getObject("XY_Plane015"), [""])
sketch16.MapMode = "FlatFace"
sketch16.addGeometry(Part.ArcOfCircle(Part.Circle(Vector(0, 0, 0), Vector(0, 0, 1), 1), math.radians(0), math.radians(90)), False)
sketch16.addGeometry(Part.ArcOfCircle(Part.Circle(Vector(0, 0, 0), Vector(0, 0, 1), 1), math.radians(90), math.radians(180)), False)
sketch16.addGeometry(Part.ArcOfCircle(Part.Circle(Vector(0, 0, 0), Vector(0, 0, 1), 1), math.radians(180), math.radians(270)), False)
sketch16.addGeometry(Part.ArcOfCircle(Part.Circle(Vector(0, 0, 0), Vector(0, 0, 1), 1), math.radians(-90), math.radians(0)), False)
sketch16.addConstraint(Sketcher.Constraint("Tangent", 0, 2, 1, 1))
sketch16.addConstraint(Sketcher.Constraint("Tangent", 1, 2, 2, 1))
sketch16.addConstraint(Sketcher.Constraint("Tangent", 2, 2, 3, 1))
sketch16.addConstraint(Sketcher.Constraint("Tangent", 3, 2, 0, 1))
sketch16.addConstraint(Sketcher.Constraint("Coincident", 0, 3, -1, 1))
sketch16.addConstraint(Sketcher.Constraint("Equal", 0, 1))
sketch16.addConstraint(Sketcher.Constraint("PointOnObject", 0, 2, -2))
sketch16.addConstraint(Sketcher.Constraint("PointOnObject", 1, 2, -1))
sketch16.addConstraint(Sketcher.Constraint("PointOnObject", 2, 2, -2))
sketch16.addConstraint(Sketcher.Constraint("PointOnObject", 3, 2, -1))
sketch16.addConstraint(Sketcher.Constraint("Radius", 0, Q("1 mm")))
pad16 = doc.addObject("PartDesign::Pad", "Pad015")
body16.addObject(pad16)
pad16.Profile = sketch16
pad16.Length = 1

doc.recompute()
